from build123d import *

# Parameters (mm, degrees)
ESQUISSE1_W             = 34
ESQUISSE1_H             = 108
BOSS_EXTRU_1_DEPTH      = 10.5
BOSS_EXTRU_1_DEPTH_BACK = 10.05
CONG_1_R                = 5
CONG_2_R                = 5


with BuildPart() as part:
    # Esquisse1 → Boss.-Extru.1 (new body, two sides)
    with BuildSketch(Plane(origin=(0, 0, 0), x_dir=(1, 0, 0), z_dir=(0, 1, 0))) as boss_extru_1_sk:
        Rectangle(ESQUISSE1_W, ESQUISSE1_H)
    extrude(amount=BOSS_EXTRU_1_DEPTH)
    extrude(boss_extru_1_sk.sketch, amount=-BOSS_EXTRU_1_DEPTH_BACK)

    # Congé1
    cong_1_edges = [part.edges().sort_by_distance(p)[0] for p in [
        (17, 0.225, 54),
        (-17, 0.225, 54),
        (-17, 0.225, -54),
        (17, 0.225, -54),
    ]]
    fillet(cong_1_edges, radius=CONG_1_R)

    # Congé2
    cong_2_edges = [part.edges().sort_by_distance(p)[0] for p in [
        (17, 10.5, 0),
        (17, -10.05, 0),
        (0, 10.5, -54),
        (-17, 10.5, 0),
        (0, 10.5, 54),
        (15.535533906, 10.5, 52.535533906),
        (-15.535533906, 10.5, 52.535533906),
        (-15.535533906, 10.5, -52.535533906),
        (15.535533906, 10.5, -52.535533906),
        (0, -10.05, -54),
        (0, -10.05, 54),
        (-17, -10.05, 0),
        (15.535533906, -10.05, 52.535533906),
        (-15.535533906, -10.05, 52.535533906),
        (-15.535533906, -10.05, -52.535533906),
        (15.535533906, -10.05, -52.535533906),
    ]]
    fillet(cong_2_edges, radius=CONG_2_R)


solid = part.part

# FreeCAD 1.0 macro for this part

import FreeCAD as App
import Part
import Sketcher
from FreeCAD import Vector


def edges_at(feature, points):
    """Names of the edges that pass closest to the given points."""
    edges = feature.Shape.Edges
    near = lambda p: min(range(len(edges)), key=lambda i: edges[i].distToShape(Part.Vertex(*p))[0])
    return sorted({f"Edge{near(p) + 1}" for p in points})


def add_polygon(sketch, points):
    """Adds a closed chain of lines whose ends are joined by coincident constraints."""
    first, n = sketch.GeometryCount, len(points)
    for a, b in zip(points, points[1:] + points[:1]):
        sketch.addGeometry(Part.LineSegment(App.Vector(*a, 0), App.Vector(*b, 0)), False)
    for i in range(n):
        sketch.addConstraint(Sketcher.Constraint("Coincident", first + i, 2, first + (i + 1) % n, 1))

doc = App.newDocument("Part")
body = doc.addObject("PartDesign::Body", "Body")

# Sketch on XZ plane
sketch1 = body.newObject("Sketcher::SketchObject", "Sketch")
sketch1.AttachmentSupport = (doc.getObject("XZ_Plane"), [""])
sketch1.MapMode = "FlatFace"
add_polygon(sketch1, [(-17, -54), (-17, 54), (17, 54), (17, -54)])  # lines 0-3
sketch1.addConstraint([
    Sketcher.Constraint("Vertical", 0),
    Sketcher.Constraint("Horizontal", 1),
    Sketcher.Constraint("Vertical", 2),
    Sketcher.Constraint("Horizontal", 3),
    Sketcher.Constraint("Symmetric", 0, 2, 2, 2, -1, 1),
    Sketcher.Constraint("DistanceX", 1, 1, 1, 2, 34.0),
    Sketcher.Constraint("DistanceY", 0, 1, 0, 2, 108.0),
])
pad1 = body.newObject("PartDesign::Pad", "Pad")
pad1.Profile = sketch1
pad1.Type = "TwoLengths"
pad1.Length = 10.5
pad1.Length2 = 10.05
pad1.Reversed = True
doc.recompute()

fillet = body.newObject("PartDesign::Fillet", "Fillet")
fillet.Base = (pad1, edges_at(pad1, [
    (17, 0.225, 54),
    (-17, 0.225, 54),
    (-17, 0.225, -54),
    (17, 0.225, -54),
]))
fillet.Radius = 5
doc.recompute()

fillet2 = body.newObject("PartDesign::Fillet", "Fillet001")
fillet2.Base = (fillet, edges_at(fillet, [
    (17, 10.5, 0),
    (17, -10.05, 0),
    (0, 10.5, -54),
    (-17, 10.5, 0),
    (0, 10.5, 54),
    (15.536, 10.5, 52.536),
    (-15.536, 10.5, 52.536),
    (-15.536, 10.5, -52.536),
    (15.536, 10.5, -52.536),
    (0, -10.05, -54),
    (0, -10.05, 54),
    (-17, -10.05, 0),
    (15.536, -10.05, 52.536),
    (-15.536, -10.05, 52.536),
    (-15.536, -10.05, -52.536),
    (15.536, -10.05, -52.536),
]))
fillet2.Radius = 5

doc.recompute()
